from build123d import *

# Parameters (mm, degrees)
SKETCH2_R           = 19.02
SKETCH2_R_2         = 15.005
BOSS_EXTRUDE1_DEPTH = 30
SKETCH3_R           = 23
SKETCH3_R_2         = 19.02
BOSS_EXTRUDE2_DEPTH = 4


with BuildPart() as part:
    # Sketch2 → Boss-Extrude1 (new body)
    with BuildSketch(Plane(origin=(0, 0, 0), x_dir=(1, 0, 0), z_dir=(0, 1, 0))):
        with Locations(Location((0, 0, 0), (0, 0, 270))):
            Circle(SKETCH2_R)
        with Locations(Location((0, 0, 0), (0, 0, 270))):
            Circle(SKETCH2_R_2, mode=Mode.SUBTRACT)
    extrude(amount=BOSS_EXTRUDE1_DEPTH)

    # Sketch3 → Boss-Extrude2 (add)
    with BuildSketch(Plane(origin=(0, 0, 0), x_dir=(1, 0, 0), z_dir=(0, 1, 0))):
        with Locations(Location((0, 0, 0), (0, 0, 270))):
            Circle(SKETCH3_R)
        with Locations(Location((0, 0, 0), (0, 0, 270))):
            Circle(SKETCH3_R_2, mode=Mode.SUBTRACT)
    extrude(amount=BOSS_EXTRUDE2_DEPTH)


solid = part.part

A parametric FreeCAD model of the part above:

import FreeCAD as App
import Part
import Sketcher
Q = App.Units.Quantity

doc = App.newDocument("Part")
body = doc.addObject("PartDesign::Body", "Body")

# Sketch on XZ plane
sketch1 = body.newObject("Sketcher::SketchObject", "Sketch")
sketch1.AttachmentSupport = (doc.getObject("XZ_Plane"), [""])
sketch1.MapMode = "FlatFace"
sketch1.addGeometry(Part.Circle(App.Vector(0, 0, 0), App.Vector(0, 0, 1), 19), False)
sketch1.addGeometry(Part.Circle(App.Vector(0, 0, 0), App.Vector(0, 0, 1), 15), False)
sketch1.addConstraint(Sketcher.Constraint("Coincident", 0, 3, -1, 1))
sketch1.addConstraint(Sketcher.Constraint("Coincident", 1, 3, -1, 1))
sketch1.addConstraint(Sketcher.Constraint("Diameter", 0, Q("38.04 mm")))
sketch1.addConstraint(Sketcher.Constraint("Diameter", 1, Q("30.01 mm")))
pad1 = body.newObject("PartDesign::Pad", "Pad")
pad1.Profile = sketch1
pad1.Length = 30
pad1.Reversed = True

# Sketch on XZ plane
sketch2 = body.newObject("Sketcher::SketchObject", "Sketch001")
sketch2.AttachmentSupport = (doc.getObject("XZ_Plane"), [""])
sketch2.MapMode = "FlatFace"
sketch2.addGeometry(Part.Circle(App.Vector(0, 0, 0), App.Vector(0, 0, 1), 23), False)
sketch2.addGeometry(Part.Circle(App.Vector(0, 0, 0), App.Vector(0, 0, 1), 19), False)
sketch2.addConstraint(Sketcher.Constraint("Coincident", 0, 3, -1, 1))
sketch2.addConstraint(Sketcher.Constraint("Coincident", 1, 3, -1, 1))
sketch2.addConstraint(Sketcher.Constraint("Diameter", 0, Q("46 mm")))
sketch2.addConstraint(Sketcher.Constraint("Diameter", 1, Q("38.04 mm")))
pad2 = body.newObject("PartDesign::Pad", "Pad001")
pad2.Profile = sketch2
pad2.Length = 4
pad2.Reversed = True

doc.recompute()
